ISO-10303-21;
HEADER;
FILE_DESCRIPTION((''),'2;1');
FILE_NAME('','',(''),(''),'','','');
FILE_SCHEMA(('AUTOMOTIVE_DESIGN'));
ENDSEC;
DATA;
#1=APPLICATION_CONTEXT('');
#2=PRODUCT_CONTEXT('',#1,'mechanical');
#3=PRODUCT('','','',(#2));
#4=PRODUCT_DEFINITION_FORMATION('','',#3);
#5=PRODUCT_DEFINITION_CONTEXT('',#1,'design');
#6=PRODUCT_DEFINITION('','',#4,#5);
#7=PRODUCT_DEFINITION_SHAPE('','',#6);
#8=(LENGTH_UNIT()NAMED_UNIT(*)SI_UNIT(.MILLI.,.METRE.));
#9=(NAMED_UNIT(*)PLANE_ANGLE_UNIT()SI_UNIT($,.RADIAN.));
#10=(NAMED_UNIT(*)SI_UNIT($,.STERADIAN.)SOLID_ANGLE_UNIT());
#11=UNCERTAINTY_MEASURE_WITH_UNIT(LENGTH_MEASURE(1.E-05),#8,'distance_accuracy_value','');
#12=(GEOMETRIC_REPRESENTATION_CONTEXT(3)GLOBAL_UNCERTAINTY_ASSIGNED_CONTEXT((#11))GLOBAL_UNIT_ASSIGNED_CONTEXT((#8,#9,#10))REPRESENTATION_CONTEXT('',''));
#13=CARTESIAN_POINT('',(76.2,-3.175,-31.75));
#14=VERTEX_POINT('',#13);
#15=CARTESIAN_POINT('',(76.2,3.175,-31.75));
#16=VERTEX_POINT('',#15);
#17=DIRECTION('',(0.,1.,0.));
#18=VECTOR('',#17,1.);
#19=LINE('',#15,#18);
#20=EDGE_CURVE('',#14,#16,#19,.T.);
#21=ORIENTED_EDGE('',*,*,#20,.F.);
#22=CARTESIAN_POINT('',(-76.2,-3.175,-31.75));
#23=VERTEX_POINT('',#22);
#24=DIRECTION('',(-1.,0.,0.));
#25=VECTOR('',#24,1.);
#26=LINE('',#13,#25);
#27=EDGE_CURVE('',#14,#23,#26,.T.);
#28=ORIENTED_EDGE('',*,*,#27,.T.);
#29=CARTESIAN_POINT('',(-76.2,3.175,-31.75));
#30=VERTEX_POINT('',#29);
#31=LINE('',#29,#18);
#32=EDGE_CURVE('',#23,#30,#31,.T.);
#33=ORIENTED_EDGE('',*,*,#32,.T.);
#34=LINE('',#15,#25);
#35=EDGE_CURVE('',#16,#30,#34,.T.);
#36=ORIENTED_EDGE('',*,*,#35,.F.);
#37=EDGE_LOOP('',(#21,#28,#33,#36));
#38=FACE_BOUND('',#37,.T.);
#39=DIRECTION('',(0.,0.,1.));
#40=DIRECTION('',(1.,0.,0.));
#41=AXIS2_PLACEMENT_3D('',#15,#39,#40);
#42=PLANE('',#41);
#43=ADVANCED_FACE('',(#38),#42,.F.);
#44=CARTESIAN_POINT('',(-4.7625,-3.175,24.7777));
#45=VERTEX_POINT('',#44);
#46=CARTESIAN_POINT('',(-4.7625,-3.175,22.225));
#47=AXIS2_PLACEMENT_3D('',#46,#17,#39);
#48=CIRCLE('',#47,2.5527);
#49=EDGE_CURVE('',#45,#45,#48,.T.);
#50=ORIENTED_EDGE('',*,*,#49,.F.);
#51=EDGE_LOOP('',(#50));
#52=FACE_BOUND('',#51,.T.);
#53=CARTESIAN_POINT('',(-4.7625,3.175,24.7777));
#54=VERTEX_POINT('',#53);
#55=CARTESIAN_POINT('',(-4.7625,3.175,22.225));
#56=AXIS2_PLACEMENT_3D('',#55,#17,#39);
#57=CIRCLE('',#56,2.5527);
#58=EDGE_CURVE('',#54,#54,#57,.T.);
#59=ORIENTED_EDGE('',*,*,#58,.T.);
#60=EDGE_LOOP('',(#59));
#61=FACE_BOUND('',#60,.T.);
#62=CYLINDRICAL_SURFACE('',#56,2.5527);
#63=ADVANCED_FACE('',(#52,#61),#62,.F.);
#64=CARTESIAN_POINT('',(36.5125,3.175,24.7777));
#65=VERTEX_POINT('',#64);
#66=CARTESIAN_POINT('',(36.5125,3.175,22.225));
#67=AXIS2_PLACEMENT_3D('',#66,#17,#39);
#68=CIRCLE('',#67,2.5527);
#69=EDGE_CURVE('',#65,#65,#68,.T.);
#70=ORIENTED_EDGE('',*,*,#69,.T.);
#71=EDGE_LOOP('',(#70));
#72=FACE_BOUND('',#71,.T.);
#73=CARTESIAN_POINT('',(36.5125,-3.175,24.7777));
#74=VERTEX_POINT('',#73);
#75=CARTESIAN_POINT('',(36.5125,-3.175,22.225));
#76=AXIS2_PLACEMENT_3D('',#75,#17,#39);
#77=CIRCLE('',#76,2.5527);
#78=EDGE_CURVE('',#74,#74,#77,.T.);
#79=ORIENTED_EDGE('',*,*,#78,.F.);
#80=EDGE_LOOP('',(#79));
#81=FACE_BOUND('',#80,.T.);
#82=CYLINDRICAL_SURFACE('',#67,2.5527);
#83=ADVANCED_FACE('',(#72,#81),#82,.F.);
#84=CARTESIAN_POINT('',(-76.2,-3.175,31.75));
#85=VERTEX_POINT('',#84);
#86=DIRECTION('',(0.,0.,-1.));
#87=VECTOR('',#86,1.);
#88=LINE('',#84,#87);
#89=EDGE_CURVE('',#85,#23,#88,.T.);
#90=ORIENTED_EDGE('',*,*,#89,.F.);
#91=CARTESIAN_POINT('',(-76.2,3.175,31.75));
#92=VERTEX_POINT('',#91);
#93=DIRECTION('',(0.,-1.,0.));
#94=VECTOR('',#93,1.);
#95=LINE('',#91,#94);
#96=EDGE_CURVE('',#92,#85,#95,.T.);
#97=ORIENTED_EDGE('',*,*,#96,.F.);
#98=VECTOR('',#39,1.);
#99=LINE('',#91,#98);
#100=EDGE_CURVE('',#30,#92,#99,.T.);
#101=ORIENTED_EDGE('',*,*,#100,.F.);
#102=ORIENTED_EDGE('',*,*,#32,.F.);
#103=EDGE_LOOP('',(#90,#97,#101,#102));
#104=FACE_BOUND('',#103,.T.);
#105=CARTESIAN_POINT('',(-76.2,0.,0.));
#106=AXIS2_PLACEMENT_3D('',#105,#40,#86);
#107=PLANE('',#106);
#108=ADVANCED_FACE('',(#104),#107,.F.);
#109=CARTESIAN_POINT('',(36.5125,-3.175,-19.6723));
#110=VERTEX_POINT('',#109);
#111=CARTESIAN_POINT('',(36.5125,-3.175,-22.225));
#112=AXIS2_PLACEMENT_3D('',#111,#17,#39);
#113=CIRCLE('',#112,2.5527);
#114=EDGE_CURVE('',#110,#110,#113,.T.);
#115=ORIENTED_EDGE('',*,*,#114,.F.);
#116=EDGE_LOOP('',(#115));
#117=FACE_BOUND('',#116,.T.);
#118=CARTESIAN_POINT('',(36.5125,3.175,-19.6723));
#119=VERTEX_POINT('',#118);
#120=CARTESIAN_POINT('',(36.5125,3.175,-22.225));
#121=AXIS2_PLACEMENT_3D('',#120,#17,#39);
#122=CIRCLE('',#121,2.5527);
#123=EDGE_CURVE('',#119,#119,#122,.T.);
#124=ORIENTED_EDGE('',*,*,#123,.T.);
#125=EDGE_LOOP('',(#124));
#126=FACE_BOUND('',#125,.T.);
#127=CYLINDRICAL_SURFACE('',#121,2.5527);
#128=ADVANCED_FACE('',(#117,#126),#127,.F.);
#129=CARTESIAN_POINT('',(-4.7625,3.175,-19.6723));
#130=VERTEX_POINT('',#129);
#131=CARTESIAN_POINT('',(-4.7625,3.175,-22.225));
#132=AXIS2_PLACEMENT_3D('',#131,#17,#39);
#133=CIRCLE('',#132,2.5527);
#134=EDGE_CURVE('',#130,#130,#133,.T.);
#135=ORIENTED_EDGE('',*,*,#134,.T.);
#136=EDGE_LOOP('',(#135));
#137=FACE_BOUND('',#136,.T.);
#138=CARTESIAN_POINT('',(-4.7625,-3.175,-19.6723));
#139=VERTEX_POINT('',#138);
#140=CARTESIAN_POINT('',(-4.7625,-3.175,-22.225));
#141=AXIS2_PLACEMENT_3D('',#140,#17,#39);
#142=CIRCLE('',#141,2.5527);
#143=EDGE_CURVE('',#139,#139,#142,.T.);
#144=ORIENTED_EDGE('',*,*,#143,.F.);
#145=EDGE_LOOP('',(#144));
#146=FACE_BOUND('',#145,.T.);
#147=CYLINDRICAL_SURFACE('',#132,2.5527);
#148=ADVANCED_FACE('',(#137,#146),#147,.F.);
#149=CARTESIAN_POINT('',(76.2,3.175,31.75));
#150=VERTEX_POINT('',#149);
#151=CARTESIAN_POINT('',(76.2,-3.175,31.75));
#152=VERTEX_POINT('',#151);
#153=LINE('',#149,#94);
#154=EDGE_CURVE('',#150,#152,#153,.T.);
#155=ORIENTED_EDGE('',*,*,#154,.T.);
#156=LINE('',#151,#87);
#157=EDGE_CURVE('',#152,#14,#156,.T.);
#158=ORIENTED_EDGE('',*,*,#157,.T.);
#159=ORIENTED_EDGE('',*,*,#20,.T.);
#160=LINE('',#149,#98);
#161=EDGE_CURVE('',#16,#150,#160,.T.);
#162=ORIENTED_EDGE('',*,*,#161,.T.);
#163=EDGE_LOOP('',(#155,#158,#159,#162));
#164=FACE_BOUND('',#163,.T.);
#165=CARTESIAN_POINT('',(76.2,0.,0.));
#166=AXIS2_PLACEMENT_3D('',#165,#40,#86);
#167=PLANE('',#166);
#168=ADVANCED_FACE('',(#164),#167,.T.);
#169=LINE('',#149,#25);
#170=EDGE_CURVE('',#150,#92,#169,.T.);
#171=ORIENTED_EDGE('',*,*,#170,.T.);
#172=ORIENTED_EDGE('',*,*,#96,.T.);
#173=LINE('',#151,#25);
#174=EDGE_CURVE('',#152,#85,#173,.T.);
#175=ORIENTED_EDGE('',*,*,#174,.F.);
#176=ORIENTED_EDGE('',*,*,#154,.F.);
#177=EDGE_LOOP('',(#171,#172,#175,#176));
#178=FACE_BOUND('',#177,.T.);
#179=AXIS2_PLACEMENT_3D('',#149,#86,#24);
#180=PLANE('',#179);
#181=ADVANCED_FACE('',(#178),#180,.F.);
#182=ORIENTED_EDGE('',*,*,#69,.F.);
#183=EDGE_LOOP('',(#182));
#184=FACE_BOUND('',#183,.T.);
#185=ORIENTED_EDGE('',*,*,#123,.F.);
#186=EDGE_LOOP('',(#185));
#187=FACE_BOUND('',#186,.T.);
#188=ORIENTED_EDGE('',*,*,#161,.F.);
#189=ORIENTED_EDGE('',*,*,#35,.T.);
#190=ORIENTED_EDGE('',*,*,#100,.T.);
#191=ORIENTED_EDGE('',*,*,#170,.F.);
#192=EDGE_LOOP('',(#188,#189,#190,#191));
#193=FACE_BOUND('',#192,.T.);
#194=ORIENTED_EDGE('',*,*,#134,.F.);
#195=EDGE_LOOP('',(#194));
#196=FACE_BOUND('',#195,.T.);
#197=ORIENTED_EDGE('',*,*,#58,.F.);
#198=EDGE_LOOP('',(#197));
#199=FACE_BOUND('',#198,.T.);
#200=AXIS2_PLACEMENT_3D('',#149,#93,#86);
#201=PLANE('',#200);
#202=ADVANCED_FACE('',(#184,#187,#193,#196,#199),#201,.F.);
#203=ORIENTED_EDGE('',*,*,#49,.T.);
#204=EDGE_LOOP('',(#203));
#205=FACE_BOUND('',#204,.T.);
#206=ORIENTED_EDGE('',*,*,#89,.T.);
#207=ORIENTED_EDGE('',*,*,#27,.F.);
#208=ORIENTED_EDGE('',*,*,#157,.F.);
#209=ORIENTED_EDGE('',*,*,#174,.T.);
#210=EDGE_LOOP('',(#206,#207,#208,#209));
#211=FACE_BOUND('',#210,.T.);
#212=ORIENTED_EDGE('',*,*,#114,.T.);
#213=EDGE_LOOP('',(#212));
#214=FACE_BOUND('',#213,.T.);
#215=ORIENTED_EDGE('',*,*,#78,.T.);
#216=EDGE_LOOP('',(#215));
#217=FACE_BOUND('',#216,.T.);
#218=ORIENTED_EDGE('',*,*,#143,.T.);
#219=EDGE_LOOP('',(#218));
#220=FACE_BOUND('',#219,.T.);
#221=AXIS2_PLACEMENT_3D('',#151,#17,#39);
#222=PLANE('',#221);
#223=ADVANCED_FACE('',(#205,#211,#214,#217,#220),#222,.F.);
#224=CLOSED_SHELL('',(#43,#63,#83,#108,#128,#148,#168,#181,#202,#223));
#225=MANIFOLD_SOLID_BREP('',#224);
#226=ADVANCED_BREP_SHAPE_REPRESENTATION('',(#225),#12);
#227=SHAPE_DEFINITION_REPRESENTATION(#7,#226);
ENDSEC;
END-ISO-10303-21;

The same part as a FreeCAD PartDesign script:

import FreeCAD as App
import Part
import Sketcher
from FreeCAD import Vector
Q = App.Units.Quantity


def add_polygon(sketch, points):
    """Adds a closed chain of lines whose ends are joined by coincident constraints."""
    first, n = sketch.GeometryCount, len(points)
    for a, b in zip(points, points[1:] + points[:1]):
        sketch.addGeometry(Part.LineSegment(App.Vector(*a, 0), App.Vector(*b, 0)), False)
    for i in range(n):
        sketch.addConstraint(Sketcher.Constraint("Coincident", first + i, 2, first + (i + 1) % n, 1))

doc = App.newDocument("Part")
body = doc.addObject("PartDesign::Body", "Body")

sketch1 = body.newObject("Sketcher::SketchObject", "Sketch")
sketch1.AttachmentSupport = (doc.getObject("YZ_Plane"), [""])
sketch1.MapMode = "FlatFace"
add_polygon(sketch1, [(3.175, 31.75), (-3.175, 31.75), (-3.175, -31.75), (3.175, -31.75)])
sketch1.addConstraint(Sketcher.Constraint("Horizontal", 0))
sketch1.addConstraint(Sketcher.Constraint("Vertical", 1))
sketch1.addConstraint(Sketcher.Constraint("Horizontal", 2))
sketch1.addConstraint(Sketcher.Constraint("Vertical", 3))
sketch1.addConstraint(Sketcher.Constraint("Symmetric", 0, 2, 2, 2, -1, 1))
sketch1.addConstraint(Sketcher.Constraint("DistanceY", 1, 2, 1, 1, Q("2.5 in")))
sketch1.addConstraint(Sketcher.Constraint("DistanceX", 0, 2, 0, 1, Q("0.25 in")))
pad1 = body.newObject("PartDesign::Pad", "Pad")
pad1.Profile = sketch1
pad1.Length = Q("6 in")
pad1.Midplane = True

sketch2 = body.newObject("Sketcher::SketchObject", "Sketch001")
sketch2.AttachmentSupport = (doc.getObject("XZ_Plane"), [""])
sketch2.MapMode = "FlatFace"
sketch2.AttachmentOffset = App.Placement(Vector(0, 0, -0.125 * 25.4), App.Rotation())
sketch2.addGeometry(Part.Circle(Vector(-4.7625, -22.225, 0), Vector(0, 0, 1), 2.5527), False)
sketch2.addGeometry(Part.Circle(Vector(36.5125, 22.225, 0), Vector(0, 0, 1), 2.5527), False)
sketch2.addGeometry(Part.Circle(Vector(-4.7625, 22.225, 0), Vector(0, 0, 1), 2.5527), False)
sketch2.addGeometry(Part.Circle(Vector(36.5125, -22.225, 0), Vector(0, 0, 1), 2.5527), False)
sketch2.addConstraint(Sketcher.Constraint("Equal", 0, 1))
sketch2.addConstraint(Sketcher.Constraint("Equal", 1, 2))
sketch2.addConstraint(Sketcher.Constraint("Equal", 2, 3))
sketch2.addConstraint(Sketcher.Constraint("Symmetric", 0, 3, 2, 3, -1))
sketch2.addConstraint(Sketcher.Constraint("Symmetric", 1, 3, 3, 3, -1))
sketch2.addConstraint(Sketcher.Constraint("Horizontal", 1, 3, 2, 3))
sketch2.addConstraint(Sketcher.Constraint("Diameter", 0, Q("0.201 in")))
sketch2.addConstraint(Sketcher.Constraint("DistanceY", 0, 3, 1, 3, Q("1.75 in")))
sketch2.addConstraint(Sketcher.Constraint("DistanceX", 0, 3, -1, 1, Q("0.1875 in")))
sketch2.addConstraint(Sketcher.Constraint("DistanceX", -1, 1, 1, 3, Q("1.4375 in")))
doc.recompute()
hole = body.newObject("PartDesign::Hole", "Hole")
hole.Profile = sketch2
hole.ThreadType = "None"
hole.Diameter = Q("0.201 in")
hole.DepthType = "Dimension"
hole.Depth = Q("0.38 in")
hole.DrillPoint = "Angled"
hole.DrillPointAngle = 118
hole.Reversed = True

doc.recompute()
